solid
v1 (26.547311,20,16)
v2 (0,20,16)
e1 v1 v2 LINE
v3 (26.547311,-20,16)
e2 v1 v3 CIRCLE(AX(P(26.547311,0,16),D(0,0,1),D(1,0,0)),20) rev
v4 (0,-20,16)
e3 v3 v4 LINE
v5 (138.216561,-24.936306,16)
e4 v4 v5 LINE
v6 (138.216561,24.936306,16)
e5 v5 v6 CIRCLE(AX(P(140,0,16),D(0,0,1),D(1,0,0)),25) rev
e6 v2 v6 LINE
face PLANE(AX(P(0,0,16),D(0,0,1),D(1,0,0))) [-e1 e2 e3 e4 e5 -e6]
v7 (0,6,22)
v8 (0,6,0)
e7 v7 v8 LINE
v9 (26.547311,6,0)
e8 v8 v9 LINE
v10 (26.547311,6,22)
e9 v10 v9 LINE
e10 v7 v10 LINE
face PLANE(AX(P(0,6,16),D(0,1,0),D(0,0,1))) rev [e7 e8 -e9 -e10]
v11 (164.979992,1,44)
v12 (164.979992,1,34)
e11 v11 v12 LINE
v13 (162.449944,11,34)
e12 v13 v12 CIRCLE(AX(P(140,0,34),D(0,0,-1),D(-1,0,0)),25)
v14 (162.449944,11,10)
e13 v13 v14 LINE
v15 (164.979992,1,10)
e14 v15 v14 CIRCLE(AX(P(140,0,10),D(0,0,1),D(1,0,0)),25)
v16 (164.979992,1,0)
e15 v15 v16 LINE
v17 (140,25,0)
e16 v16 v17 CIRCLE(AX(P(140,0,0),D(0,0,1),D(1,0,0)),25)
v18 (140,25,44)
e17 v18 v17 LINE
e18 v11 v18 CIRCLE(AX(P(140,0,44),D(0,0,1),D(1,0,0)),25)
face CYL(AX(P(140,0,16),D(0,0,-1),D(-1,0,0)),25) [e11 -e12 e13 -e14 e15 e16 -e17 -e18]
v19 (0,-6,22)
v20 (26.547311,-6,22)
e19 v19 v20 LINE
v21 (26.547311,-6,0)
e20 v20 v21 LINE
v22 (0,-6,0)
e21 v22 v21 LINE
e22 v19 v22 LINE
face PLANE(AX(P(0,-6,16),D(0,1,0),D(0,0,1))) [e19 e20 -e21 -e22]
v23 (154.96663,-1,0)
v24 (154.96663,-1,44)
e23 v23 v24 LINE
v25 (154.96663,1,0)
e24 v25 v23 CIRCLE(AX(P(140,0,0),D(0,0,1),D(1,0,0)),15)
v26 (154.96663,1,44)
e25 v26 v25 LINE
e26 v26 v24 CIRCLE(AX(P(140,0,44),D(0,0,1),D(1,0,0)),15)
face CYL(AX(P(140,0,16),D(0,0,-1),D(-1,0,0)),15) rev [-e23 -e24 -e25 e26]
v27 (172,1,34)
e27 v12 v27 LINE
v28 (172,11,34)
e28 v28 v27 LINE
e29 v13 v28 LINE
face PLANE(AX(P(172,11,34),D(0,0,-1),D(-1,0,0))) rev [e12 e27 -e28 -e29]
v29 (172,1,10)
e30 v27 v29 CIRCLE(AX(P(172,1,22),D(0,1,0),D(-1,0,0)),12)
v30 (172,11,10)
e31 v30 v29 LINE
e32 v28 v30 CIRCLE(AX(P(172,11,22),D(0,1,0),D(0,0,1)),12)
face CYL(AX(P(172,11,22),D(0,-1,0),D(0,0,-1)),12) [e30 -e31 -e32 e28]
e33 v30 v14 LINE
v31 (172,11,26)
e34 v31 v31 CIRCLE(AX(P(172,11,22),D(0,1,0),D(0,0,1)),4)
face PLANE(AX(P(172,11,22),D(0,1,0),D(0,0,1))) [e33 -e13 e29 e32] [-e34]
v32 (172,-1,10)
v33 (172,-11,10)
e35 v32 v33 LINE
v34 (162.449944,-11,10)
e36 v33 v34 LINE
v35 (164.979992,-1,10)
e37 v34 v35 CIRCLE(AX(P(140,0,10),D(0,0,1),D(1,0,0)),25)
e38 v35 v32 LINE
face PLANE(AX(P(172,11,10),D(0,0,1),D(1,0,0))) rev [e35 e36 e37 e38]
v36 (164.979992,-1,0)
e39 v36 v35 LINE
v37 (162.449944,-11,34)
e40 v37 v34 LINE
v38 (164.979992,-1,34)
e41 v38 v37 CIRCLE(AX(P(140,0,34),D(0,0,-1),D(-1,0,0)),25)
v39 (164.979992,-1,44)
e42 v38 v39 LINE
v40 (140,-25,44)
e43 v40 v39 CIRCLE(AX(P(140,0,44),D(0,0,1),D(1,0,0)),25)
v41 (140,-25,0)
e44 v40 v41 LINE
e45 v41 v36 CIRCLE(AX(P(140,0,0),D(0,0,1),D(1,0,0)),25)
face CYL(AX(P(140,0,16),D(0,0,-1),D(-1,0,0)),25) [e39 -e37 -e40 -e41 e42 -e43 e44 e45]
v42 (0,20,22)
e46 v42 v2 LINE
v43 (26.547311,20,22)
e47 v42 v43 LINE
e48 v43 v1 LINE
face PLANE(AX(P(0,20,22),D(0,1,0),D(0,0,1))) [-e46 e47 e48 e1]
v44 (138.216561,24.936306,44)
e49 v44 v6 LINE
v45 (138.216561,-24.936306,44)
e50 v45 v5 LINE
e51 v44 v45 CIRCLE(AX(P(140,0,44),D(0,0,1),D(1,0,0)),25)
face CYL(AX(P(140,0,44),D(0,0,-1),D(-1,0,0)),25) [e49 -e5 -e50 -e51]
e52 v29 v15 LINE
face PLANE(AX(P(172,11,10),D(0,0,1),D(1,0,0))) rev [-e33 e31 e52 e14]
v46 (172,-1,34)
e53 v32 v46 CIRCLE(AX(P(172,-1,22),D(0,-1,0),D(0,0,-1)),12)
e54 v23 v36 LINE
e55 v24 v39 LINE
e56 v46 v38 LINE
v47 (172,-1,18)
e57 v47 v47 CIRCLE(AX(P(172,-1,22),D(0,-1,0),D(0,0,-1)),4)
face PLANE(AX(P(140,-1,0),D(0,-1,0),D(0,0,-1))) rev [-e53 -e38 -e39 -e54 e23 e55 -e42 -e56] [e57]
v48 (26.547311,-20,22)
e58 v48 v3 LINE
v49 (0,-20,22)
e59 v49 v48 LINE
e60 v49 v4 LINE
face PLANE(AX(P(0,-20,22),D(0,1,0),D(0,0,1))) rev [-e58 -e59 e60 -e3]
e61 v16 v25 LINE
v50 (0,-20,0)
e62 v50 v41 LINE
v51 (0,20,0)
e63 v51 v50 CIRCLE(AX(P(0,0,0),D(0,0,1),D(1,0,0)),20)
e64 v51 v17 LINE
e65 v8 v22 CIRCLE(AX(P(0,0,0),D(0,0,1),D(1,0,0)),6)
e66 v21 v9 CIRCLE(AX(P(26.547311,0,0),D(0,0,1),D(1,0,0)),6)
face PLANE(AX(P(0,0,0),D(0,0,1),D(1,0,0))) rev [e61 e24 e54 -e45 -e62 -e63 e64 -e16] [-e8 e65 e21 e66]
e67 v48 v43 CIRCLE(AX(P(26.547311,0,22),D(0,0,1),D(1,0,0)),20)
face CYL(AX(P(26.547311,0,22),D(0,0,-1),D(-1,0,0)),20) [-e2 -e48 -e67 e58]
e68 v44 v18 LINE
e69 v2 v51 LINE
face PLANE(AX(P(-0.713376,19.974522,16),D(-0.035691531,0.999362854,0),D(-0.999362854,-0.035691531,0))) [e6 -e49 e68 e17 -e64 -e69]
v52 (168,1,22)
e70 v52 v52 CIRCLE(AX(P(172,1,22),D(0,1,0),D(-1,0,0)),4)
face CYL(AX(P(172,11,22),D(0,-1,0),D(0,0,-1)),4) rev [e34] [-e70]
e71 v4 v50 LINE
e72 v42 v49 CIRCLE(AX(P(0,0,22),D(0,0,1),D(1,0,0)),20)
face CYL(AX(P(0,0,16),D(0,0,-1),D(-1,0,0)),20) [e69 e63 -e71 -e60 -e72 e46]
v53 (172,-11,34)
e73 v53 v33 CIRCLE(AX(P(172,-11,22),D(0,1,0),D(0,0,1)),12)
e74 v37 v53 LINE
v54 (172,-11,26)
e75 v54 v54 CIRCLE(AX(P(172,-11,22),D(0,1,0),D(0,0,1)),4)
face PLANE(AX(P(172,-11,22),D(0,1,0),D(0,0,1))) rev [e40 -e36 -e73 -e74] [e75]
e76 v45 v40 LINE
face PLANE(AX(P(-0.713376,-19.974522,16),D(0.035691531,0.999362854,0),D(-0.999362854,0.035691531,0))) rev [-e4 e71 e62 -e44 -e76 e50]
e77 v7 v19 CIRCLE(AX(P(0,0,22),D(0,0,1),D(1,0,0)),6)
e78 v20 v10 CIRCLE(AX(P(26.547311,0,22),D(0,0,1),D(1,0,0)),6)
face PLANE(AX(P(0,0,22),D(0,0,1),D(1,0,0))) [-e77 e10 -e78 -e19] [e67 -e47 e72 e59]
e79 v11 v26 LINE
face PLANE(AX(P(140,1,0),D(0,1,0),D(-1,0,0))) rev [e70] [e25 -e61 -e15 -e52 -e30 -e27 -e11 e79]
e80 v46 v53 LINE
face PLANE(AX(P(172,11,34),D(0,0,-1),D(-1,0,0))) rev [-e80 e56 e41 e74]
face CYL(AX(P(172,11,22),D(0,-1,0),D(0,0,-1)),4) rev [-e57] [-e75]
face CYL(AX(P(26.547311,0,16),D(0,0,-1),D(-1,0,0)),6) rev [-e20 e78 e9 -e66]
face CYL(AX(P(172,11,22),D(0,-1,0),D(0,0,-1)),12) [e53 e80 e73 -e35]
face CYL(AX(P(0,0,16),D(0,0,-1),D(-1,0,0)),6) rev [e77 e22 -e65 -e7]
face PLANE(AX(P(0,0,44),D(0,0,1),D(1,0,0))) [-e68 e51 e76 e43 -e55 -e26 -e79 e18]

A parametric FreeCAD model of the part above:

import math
import FreeCAD as App
import Part
import Sketcher

V = App.Vector
Q = App.Units.Quantity

doc = App.newDocument("Part")
body = doc.addObject("PartDesign::Body", "Body")

sketch1 = doc.addObject("Sketcher::SketchObject", "Sketch")
body.addObject(sketch1)
sketch1.AttachmentSupport = (doc.XY_Plane, [""])
sketch1.MapMode = "FlatFace"
sketch1.addGeometry([
    Part.ArcOfCircle(Part.Circle(V(0, 0, 0), V(0, 0, 1), 20), math.radians(90), math.radians(270)),
    Part.LineSegment(V(0, -20, 0), V(138.2, -24.9, 0)),
    Part.LineSegment(V(138.2, -24.9, 0), V(140, -25, 0)),
    Part.ArcOfCircle(Part.Circle(V(140, 0, 0), V(0, 0, 1), 25), math.radians(-90), math.radians(0)),
    Part.ArcOfCircle(Part.Circle(V(140, 0, 0), V(0, 0, 1), 25), math.radians(0), math.radians(90)),
    Part.LineSegment(V(140, 25, 0), V(138.2, 24.9, 0)),
    Part.LineSegment(V(138.2, 24.9, 0), V(0, 20, 0)),
    Part.ArcOfCircle(Part.Circle(V(26.5, 0, 0), V(0, 0, 1), 6), math.radians(-90), math.radians(90)),
    Part.LineSegment(V(26.5, -6, 0), V(0, -6, 0)),
    Part.ArcOfCircle(Part.Circle(V(0, 0, 0), V(0, 0, 1), 6), math.radians(90), math.radians(270)),
    Part.LineSegment(V(0, 6, 0), V(26.5, 6, 0)),
    Part.Circle(V(140, 0, 0), V(0, 0, 1), 15),
], False)
sketch1.addConstraint([
    Sketcher.Constraint("Coincident", 0, 2, 1, 1),
    Sketcher.Constraint("Coincident", 1, 2, 2, 1),
    Sketcher.Constraint("Coincident", 2, 2, 3, 1),
    Sketcher.Constraint("Tangent", 3, 2, 4, 1),
    Sketcher.Constraint("Coincident", 4, 2, 5, 1),
    Sketcher.Constraint("Coincident", 5, 2, 6, 1),
    Sketcher.Constraint("Coincident", 6, 2, 0, 1),
    Sketcher.Constraint("Tangent", 7, 1, 8, 1),
    Sketcher.Constraint("Tangent", 8, 2, 9, 2),
    Sketcher.Constraint("Tangent", 9, 1, 10, 1),
    Sketcher.Constraint("Tangent", 10, 2, 7, 2),
    Sketcher.Constraint("Horizontal", 8),
    Sketcher.Constraint("Horizontal", 10),
    Sketcher.Constraint("Coincident", 0, 3, -1, 1),
    Sketcher.Constraint("Coincident", 9, 3, -1, 1),
    Sketcher.Constraint("Coincident", 11, 3, 3, 3),
    Sketcher.Constraint("Equal", 3, 4),
    Sketcher.Constraint("Symmetric", 2, 2, 4, 2, -1),
    Sketcher.Constraint("Symmetric", 1, 2, 5, 2, -1),
    Sketcher.Constraint("PointOnObject", 0, 2, -2),
    Sketcher.Constraint("PointOnObject", 3, 2, -1),
    Sketcher.Constraint("PointOnObject", 6, 2, -2),
    Sketcher.Constraint("Parallel", 1, 2),
    Sketcher.Constraint("Vertical", 11, 3, 2, 2),
    Sketcher.Constraint("Diameter", 11, Q("30 mm")),
    Sketcher.Constraint("Radius", 0, Q("20 mm")),
    Sketcher.Constraint("Radius", 3, Q("25 mm")),
    Sketcher.Constraint("Radius", 7, Q("6 mm")),
    Sketcher.Constraint("DistanceX", -1, 1, 3, 3, Q("140 mm")),
    Sketcher.Constraint("DistanceX", 8, 2, 8, 1, Q("26.547311 mm")),
    Sketcher.Constraint("Distance", 1, Q("138.304681 mm")),
])
pad1 = doc.addObject("PartDesign::Pad", "Pad")
body.addObject(pad1)
pad1.Profile = sketch1
pad1.Length = 16

sketch2 = doc.addObject("Sketcher::SketchObject", "Sketch001")
body.addObject(sketch2)
sketch2.AttachmentSupport = (doc.XY_Plane, [""])
sketch2.MapMode = "FlatFace"
sketch2.addGeometry([
    Part.LineSegment(V(0, -20, 0), V(27, -20, 0)),
    Part.ArcOfCircle(Part.Circle(V(27, 0, 0), V(0, 0, 1), 20), math.radians(-90), math.radians(90)),
    Part.LineSegment(V(27, 20, 0), V(0, 20, 0)),
    Part.ArcOfCircle(Part.Circle(V(0, 0, 0), V(0, 0, 1), 20), math.radians(90), math.radians(270)),
    Part.ArcOfCircle(Part.Circle(V(27, 0, 0), V(0, 0, 1), 6), math.radians(-90), math.radians(90)),
    Part.LineSegment(V(27, -6, 0), V(0, -6, 0)),
    Part.ArcOfCircle(Part.Circle(V(0, 0, 0), V(0, 0, 1), 6), math.radians(90), math.radians(270)),
    Part.LineSegment(V(0, 6, 0), V(27, 6, 0)),
], False)
sketch2.addConstraint([
    Sketcher.Constraint("Tangent", 0, 2, 1, 1),
    Sketcher.Constraint("Tangent", 1, 2, 2, 1),
    Sketcher.Constraint("Tangent", 2, 2, 3, 1),
    Sketcher.Constraint("Tangent", 3, 2, 0, 1),
    Sketcher.Constraint("Tangent", 4, 1, 5, 1),
    Sketcher.Constraint("Tangent", 5, 2, 6, 2),
    Sketcher.Constraint("Tangent", 6, 1, 7, 1),
    Sketcher.Constraint("Tangent", 7, 2, 4, 2),
    Sketcher.Constraint("Horizontal", 0),
    Sketcher.Constraint("Horizontal", 2),
    Sketcher.Constraint("Horizontal", 5),
    Sketcher.Constraint("Horizontal", 7),
    Sketcher.Constraint("Coincident", 3, 3, -1, 1),
    Sketcher.Constraint("Coincident", 6, 3, -1, 1),
    Sketcher.Constraint("Vertical", 4, 3, 0, 2),
    Sketcher.Constraint("Radius", 1, Q("20 mm")),
    Sketcher.Constraint("Radius", 4, Q("6 mm")),
    Sketcher.Constraint("DistanceX", 0, 1, 0, 2, Q("26.547311 mm")),
])
pad2 = doc.addObject("PartDesign::Pad", "Pad001")
body.addObject(pad2)
pad2.Profile = sketch2
pad2.Length = 22

sketch3 = doc.addObject("Sketcher::SketchObject", "Sketch002")
body.addObject(sketch3)
sketch3.AttachmentSupport = (doc.XY_Plane, [""])
sketch3.MapMode = "FlatFace"
sketch3.addGeometry([
    Part.LineSegment(V(140, 25, 0), V(138.2, 24.9, 0)),
    Part.ArcOfCircle(Part.Circle(V(140, 0, 0), V(0, 0, 1), 25), math.radians(94), math.radians(266)),
    Part.LineSegment(V(138.2, -24.9, 0), V(140, -25, 0)),
    Part.ArcOfCircle(Part.Circle(V(140, 0, 0), V(0, 0, 1), 25), math.radians(-90), math.radians(0)),
    Part.ArcOfCircle(Part.Circle(V(140, 0, 0), V(0, 0, 1), 25), math.radians(0), math.radians(90)),
    Part.Circle(V(140, 0, 0), V(0, 0, 1), 15),
], False)
sketch3.addConstraint([
    Sketcher.Constraint("Coincident", 0, 2, 1, 1),
    Sketcher.Constraint("Coincident", 1, 2, 2, 1),
    Sketcher.Constraint("Coincident", 2, 2, 3, 1),
    Sketcher.Constraint("Tangent", 3, 2, 4, 1),
    Sketcher.Constraint("Coincident", 4, 2, 0, 1),
    Sketcher.Constraint("Coincident", 3, 3, 1, 3),
    Sketcher.Constraint("Coincident", 5, 3, 1, 3),
    Sketcher.Constraint("Equal", 1, 3),
    Sketcher.Constraint("Equal", 3, 4),
    Sketcher.Constraint("Symmetric", 0, 2, 1, 2, -1),
    Sketcher.Constraint("PointOnObject", 3, 2, -1),
    Sketcher.Constraint("Vertical", 5, 3, 2, 2),
    Sketcher.Constraint("Vertical", 2, 2, 4, 2),
    Sketcher.Constraint("Diameter", 5, Q("30 mm")),
    Sketcher.Constraint("Radius", 1, Q("25 mm")),
    Sketcher.Constraint("DistanceX", -1, 1, 1, 3, Q("140 mm")),
    Sketcher.Constraint("DistanceX", -1, 1, 0, 2, Q("138.216561 mm")),
])
pad3 = doc.addObject("PartDesign::Pad", "Pad002")
body.addObject(pad3)
pad3.Profile = sketch3
pad3.Length = 44

sketch4 = doc.addObject("Sketcher::SketchObject", "Sketch003")
body.addObject(sketch4)
sketch4.AttachmentSupport = (doc.XZ_Plane, [""])
sketch4.MapMode = "FlatFace"
sketch4.addGeometry([
    Part.LineSegment(V(172, 10, 0), V(156.5, 10, 0)),
    Part.LineSegment(V(156.5, 10, 0), V(156.5, 34, 0)),
    Part.LineSegment(V(156.5, 34, 0), V(172, 34, 0)),
    Part.ArcOfCircle(Part.Circle(V(172, 22, 0), V(0, 0, 1), 12), math.radians(-90), math.radians(90)),
    Part.Circle(V(172, 22, 0), V(0, 0, 1), 4),
], False)
sketch4.addConstraint([
    Sketcher.Constraint("Coincident", 0, 2, 1, 1),
    Sketcher.Constraint("Coincident", 1, 2, 2, 1),
    Sketcher.Constraint("Tangent", 2, 2, 3, 2),
    Sketcher.Constraint("Tangent", 3, 1, 0, 1),
    Sketcher.Constraint("Horizontal", 0),
    Sketcher.Constraint("Vertical", 1),
    Sketcher.Constraint("Horizontal", 2),
    Sketcher.Constraint("Coincident", 4, 3, 3, 3),
    Sketcher.Constraint("Diameter", 4, Q("8 mm")),
    Sketcher.Constraint("Radius", 3, Q("12 mm")),
    Sketcher.Constraint("DistanceX", -1, 1, 3, 3, Q("172 mm")),
    Sketcher.Constraint("DistanceY", -1, 1, 3, 3, Q("22 mm")),
    Sketcher.Constraint("DistanceX", 0, 2, 0, 1, Q("15.479849 mm")),
])
pad4 = doc.addObject("PartDesign::Pad", "Pad003")
body.addObject(pad4)
pad4.Profile = sketch4
pad4.Length = 22
pad4.Midplane = True

sketch5 = doc.addObject("Sketcher::SketchObject", "Sketch004")
body.addObject(sketch5)
sketch5.AttachmentSupport = (doc.XY_Plane, [""])
sketch5.MapMode = "FlatFace"
sketch5.AttachmentOffset = App.Placement(V(0, 0, 44), App.Rotation())
sketch5.addGeometry([
    Part.LineSegment(V(140, 1, 0), V(140, -1, 0)),
    Part.LineSegment(V(140, -1, 0), V(190, -1, 0)),
    Part.LineSegment(V(190, -1, 0), V(190, 1, 0)),
    Part.LineSegment(V(190, 1, 0), V(140, 1, 0)),
], False)
sketch5.addConstraint([
    Sketcher.Constraint("Coincident", 0, 2, 1, 1),
    Sketcher.Constraint("Coincident", 1, 2, 2, 1),
    Sketcher.Constraint("Coincident", 2, 2, 3, 1),
    Sketcher.Constraint("Coincident", 3, 2, 0, 1),
    Sketcher.Constraint("Vertical", 0),
    Sketcher.Constraint("Horizontal", 1),
    Sketcher.Constraint("Vertical", 2),
    Sketcher.Constraint("Horizontal", 3),
    Sketcher.Constraint("DistanceX", 1, 1, 1, 2, Q("50 mm")),
    Sketcher.Constraint("DistanceY", 0, 2, 0, 1, Q("2 mm")),
    Sketcher.Constraint("DistanceX", -1, 1, 0, 2, Q("140 mm")),
    Sketcher.Constraint("DistanceY", 0, 2, -1, 1, Q("1 mm")),
])
pocket1 = doc.addObject("PartDesign::Pocket", "Pocket")
body.addObject(pocket1)
pocket1.Profile = sketch5
pocket1.Type = "ThroughAll"

doc.recompute()
